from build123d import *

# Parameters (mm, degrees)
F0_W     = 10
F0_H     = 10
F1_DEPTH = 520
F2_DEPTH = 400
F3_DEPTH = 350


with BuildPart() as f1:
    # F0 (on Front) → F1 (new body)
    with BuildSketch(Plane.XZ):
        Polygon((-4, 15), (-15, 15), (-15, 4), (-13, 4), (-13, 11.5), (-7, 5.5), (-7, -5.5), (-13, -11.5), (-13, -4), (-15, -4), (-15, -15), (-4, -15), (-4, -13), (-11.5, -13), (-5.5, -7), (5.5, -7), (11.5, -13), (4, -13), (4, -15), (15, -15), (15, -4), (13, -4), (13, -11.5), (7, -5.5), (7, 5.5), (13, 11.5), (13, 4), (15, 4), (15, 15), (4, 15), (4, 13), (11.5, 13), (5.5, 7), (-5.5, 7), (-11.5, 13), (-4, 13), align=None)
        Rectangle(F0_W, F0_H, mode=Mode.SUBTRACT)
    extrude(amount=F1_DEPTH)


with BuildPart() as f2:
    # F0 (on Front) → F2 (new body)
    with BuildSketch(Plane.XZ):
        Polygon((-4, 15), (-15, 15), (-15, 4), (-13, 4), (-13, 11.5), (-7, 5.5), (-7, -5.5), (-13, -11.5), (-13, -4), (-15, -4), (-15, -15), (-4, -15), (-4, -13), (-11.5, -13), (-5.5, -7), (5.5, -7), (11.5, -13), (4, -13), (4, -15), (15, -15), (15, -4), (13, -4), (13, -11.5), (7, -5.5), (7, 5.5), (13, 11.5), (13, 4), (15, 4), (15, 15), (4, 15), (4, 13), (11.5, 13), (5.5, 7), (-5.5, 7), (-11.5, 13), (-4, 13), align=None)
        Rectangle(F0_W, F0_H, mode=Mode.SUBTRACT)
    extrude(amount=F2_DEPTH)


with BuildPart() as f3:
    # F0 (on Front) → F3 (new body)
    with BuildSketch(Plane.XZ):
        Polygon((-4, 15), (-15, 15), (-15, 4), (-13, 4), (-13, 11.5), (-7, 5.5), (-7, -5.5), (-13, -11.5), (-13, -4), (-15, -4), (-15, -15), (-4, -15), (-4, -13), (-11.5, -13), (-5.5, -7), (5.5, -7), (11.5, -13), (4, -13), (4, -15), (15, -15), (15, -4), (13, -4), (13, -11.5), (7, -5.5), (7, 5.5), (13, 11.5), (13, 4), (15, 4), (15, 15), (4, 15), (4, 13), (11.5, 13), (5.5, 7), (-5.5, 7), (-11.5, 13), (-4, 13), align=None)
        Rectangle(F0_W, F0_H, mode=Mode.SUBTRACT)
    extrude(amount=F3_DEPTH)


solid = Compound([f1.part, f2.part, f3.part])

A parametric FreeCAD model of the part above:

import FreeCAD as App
import Part
import Sketcher
Q = App.Units.Quantity


def add_polygon(sketch, points):
    """Adds a closed chain of lines whose ends are joined by coincident constraints."""
    first, n = sketch.GeometryCount, len(points)
    for a, b in zip(points, points[1:] + points[:1]):
        sketch.addGeometry(Part.LineSegment(App.Vector(*a, 0), App.Vector(*b, 0)), False)
    for i in range(n):
        sketch.addConstraint(Sketcher.Constraint("Coincident", first + i, 2, first + (i + 1) % n, 1))

doc = App.newDocument("Part")
body = doc.addObject("PartDesign::Body", "Body")

# Sketch on XZ plane
sketch1 = body.newObject("Sketcher::SketchObject", "Sketch")
sketch1.AttachmentSupport = (doc.getObject("XZ_Plane"), [""])
sketch1.MapMode = "FlatFace"
add_polygon(sketch1, [(-4, 15), (-15, 15), (-15, 4), (-13, 4), (-13, 11.5), (-7, 5.5), (-7, -5.5), (-13, -11.5), (-13, -4), (-15, -4), (-15, -15), (-4, -15), (-4, -13), (-11.5, -13), (-5.5, -7), (5.5, -7), (11.5, -13), (4, -13), (4, -15), (15, -15), (15, -4), (13, -4), (13, -11.5), (7, -5.5), (7, 5.5), (13, 11.5), (13, 4), (15, 4), (15, 15), (4, 15), (4, 13), (11.5, 13), (5.5, 7), (-5.5, 7), (-11.5, 13), (-4, 13)])  # lines 0-35
add_polygon(sketch1, [(5, -5), (-5, -5), (-5, 5), (5, 5)])  # lines 36-39
sketch1.addConstraint(Sketcher.Constraint("Horizontal", 0))
sketch1.addConstraint(Sketcher.Constraint("Vertical", 1))
sketch1.addConstraint(Sketcher.Constraint("Horizontal", 2))
sketch1.addConstraint(Sketcher.Constraint("Vertical", 3))
sketch1.addConstraint(Sketcher.Constraint("Vertical", 5))
sketch1.addConstraint(Sketcher.Constraint("Vertical", 7))
sketch1.addConstraint(Sketcher.Constraint("Horizontal", 8))
sketch1.addConstraint(Sketcher.Constraint("Vertical", 9))
sketch1.addConstraint(Sketcher.Constraint("Horizontal", 10))
sketch1.addConstraint(Sketcher.Constraint("Vertical", 11))
sketch1.addConstraint(Sketcher.Constraint("Horizontal", 12))
sketch1.addConstraint(Sketcher.Constraint("Horizontal", 14))
sketch1.addConstraint(Sketcher.Constraint("Horizontal", 16))
sketch1.addConstraint(Sketcher.Constraint("Vertical", 17))
sketch1.addConstraint(Sketcher.Constraint("Horizontal", 18))
sketch1.addConstraint(Sketcher.Constraint("Vertical", 19))
sketch1.addConstraint(Sketcher.Constraint("Horizontal", 20))
sketch1.addConstraint(Sketcher.Constraint("Vertical", 21))
sketch1.addConstraint(Sketcher.Constraint("Vertical", 23))
sketch1.addConstraint(Sketcher.Constraint("Vertical", 25))
sketch1.addConstraint(Sketcher.Constraint("Horizontal", 26))
sketch1.addConstraint(Sketcher.Constraint("Vertical", 27))
sketch1.addConstraint(Sketcher.Constraint("Horizontal", 28))
sketch1.addConstraint(Sketcher.Constraint("Vertical", 29))
sketch1.addConstraint(Sketcher.Constraint("Horizontal", 30))
sketch1.addConstraint(Sketcher.Constraint("Horizontal", 32))
sketch1.addConstraint(Sketcher.Constraint("Horizontal", 34))
sketch1.addConstraint(Sketcher.Constraint("Vertical", 35))
sketch1.addConstraint(Sketcher.Constraint("Horizontal", 36))
sketch1.addConstraint(Sketcher.Constraint("Vertical", 37))
sketch1.addConstraint(Sketcher.Constraint("Horizontal", 38))
sketch1.addConstraint(Sketcher.Constraint("Vertical", 39))
sketch1.addConstraint(Sketcher.Constraint("Symmetric", 0, 2, 18, 2, -1, 1))
sketch1.addConstraint(Sketcher.Constraint("Symmetric", 2, 2, 20, 2, -1, 1))
sketch1.addConstraint(Sketcher.Constraint("Symmetric", 4, 2, 22, 2, -1, 1))
sketch1.addConstraint(Sketcher.Constraint("Symmetric", 6, 2, 24, 2, -1, 1))
sketch1.addConstraint(Sketcher.Constraint("Symmetric", 8, 2, 26, 2, -1, 1))
sketch1.addConstraint(Sketcher.Constraint("Symmetric", 10, 2, 28, 2, -1, 1))
sketch1.addConstraint(Sketcher.Constraint("Symmetric", 12, 2, 30, 2, -1, 1))
sketch1.addConstraint(Sketcher.Constraint("Symmetric", 13, 2, 31, 2, -1, 1))
sketch1.addConstraint(Sketcher.Constraint("Symmetric", 15, 2, 33, 2, -1, 1))
sketch1.addConstraint(Sketcher.Constraint("Symmetric", 36, 2, 38, 2, -1, 1))
sketch1.addConstraint(Sketcher.Constraint("Symmetric", 12, 2, 15, 2, -2))
sketch1.addConstraint(Sketcher.Constraint("Symmetric", 10, 2, 17, 2, -2))
sketch1.addConstraint(Sketcher.Constraint("Symmetric", 8, 2, 19, 2, -2))
sketch1.addConstraint(Sketcher.Constraint("Symmetric", 6, 2, 21, 2, -2))
sketch1.addConstraint(Sketcher.Constraint("Perpendicular", 4, 6))
sketch1.addConstraint(Sketcher.Constraint("Parallel", 6, 13))
sketch1.addConstraint(Sketcher.Constraint("Perpendicular", 13, 15))
sketch1.addConstraint(Sketcher.Constraint("Parallel", 15, 22))
sketch1.addConstraint(Sketcher.Constraint("Perpendicular", 22, 24))
sketch1.addConstraint(Sketcher.Constraint("Perpendicular", 31, 33))
sketch1.addConstraint(Sketcher.Constraint("Horizontal", 5, 2, 22, 2))
sketch1.addConstraint(Sketcher.Constraint("Vertical", 11, 2, 34, 2))
sketch1.addConstraint(Sketcher.Constraint("Equal", 10, 14))
sketch1.addConstraint(Sketcher.Constraint("Equal", 32, 1))
sketch1.addConstraint(Sketcher.Constraint("Equal", 34, 3))
sketch1.addConstraint(Sketcher.Constraint("Equal", 1, 5))
sketch1.addConstraint(Sketcher.Constraint("Equal", 26, 11))
sketch1.addConstraint(Sketcher.Constraint("Equal", 38, 37))
sketch1.addConstraint(Sketcher.Constraint("Equal", 6, 13))
sketch1.addConstraint(Sketcher.Constraint("DistanceX", 0, 2, 0, 1, Q("11 mm")))
sketch1.addConstraint(Sketcher.Constraint("DistanceX", 2, 1, 2, 2, Q("2 mm")))
sketch1.addConstraint(Sketcher.Constraint("DistanceX", 36, 2, 36, 1, Q("10 mm")))
sketch1.addConstraint(Sketcher.Constraint("DistanceX", 12, 2, 12, 1, Q("7.5 mm")))
sketch1.addConstraint(Sketcher.Constraint("DistanceX", 0, 2, -1, 1, Q("15 mm")))
pad1 = body.newObject("PartDesign::Pad", "Pad")
pad1.Profile = sketch1
pad1.Length = 520
body2 = doc.addObject("PartDesign::Body", "Body001")

# Sketch on XZ plane
sketch2 = body2.newObject("Sketcher::SketchObject", "Sketch001")
sketch2.AttachmentSupport = (doc.getObject("XZ_Plane001"), [""])
sketch2.MapMode = "FlatFace"
add_polygon(sketch2, [(-4, 15), (-15, 15), (-15, 4), (-13, 4), (-13, 11.5), (-7, 5.5), (-7, -5.5), (-13, -11.5), (-13, -4), (-15, -4), (-15, -15), (-4, -15), (-4, -13), (-11.5, -13), (-5.5, -7), (5.5, -7), (11.5, -13), (4, -13), (4, -15), (15, -15), (15, -4), (13, -4), (13, -11.5), (7, -5.5), (7, 5.5), (13, 11.5), (13, 4), (15, 4), (15, 15), (4, 15), (4, 13), (11.5, 13), (5.5, 7), (-5.5, 7), (-11.5, 13), (-4, 13)])  # lines 0-35
add_polygon(sketch2, [(5, -5), (-5, -5), (-5, 5), (5, 5)])  # lines 36-39
sketch2.addConstraint(Sketcher.Constraint("Horizontal", 0))
sketch2.addConstraint(Sketcher.Constraint("Vertical", 1))
sketch2.addConstraint(Sketcher.Constraint("Horizontal", 2))
sketch2.addConstraint(Sketcher.Constraint("Vertical", 3))
sketch2.addConstraint(Sketcher.Constraint("Vertical", 5))
sketch2.addConstraint(Sketcher.Constraint("Vertical", 7))
sketch2.addConstraint(Sketcher.Constraint("Horizontal", 8))
sketch2.addConstraint(Sketcher.Constraint("Vertical", 9))
sketch2.addConstraint(Sketcher.Constraint("Horizontal", 10))
sketch2.addConstraint(Sketcher.Constraint("Vertical", 11))
sketch2.addConstraint(Sketcher.Constraint("Horizontal", 12))
sketch2.addConstraint(Sketcher.Constraint("Horizontal", 14))
sketch2.addConstraint(Sketcher.Constraint("Horizontal", 16))
sketch2.addConstraint(Sketcher.Constraint("Vertical", 17))
sketch2.addConstraint(Sketcher.Constraint("Horizontal", 18))
sketch2.addConstraint(Sketcher.Constraint("Vertical", 19))
sketch2.addConstraint(Sketcher.Constraint("Horizontal", 20))
sketch2.addConstraint(Sketcher.Constraint("Vertical", 21))
sketch2.addConstraint(Sketcher.Constraint("Vertical", 23))
sketch2.addConstraint(Sketcher.Constraint("Vertical", 25))
sketch2.addConstraint(Sketcher.Constraint("Horizontal", 26))
sketch2.addConstraint(Sketcher.Constraint("Vertical", 27))
sketch2.addConstraint(Sketcher.Constraint("Horizontal", 28))
sketch2.addConstraint(Sketcher.Constraint("Vertical", 29))
sketch2.addConstraint(Sketcher.Constraint("Horizontal", 30))
sketch2.addConstraint(Sketcher.Constraint("Horizontal", 32))
sketch2.addConstraint(Sketcher.Constraint("Horizontal", 34))
sketch2.addConstraint(Sketcher.Constraint("Vertical", 35))
sketch2.addConstraint(Sketcher.Constraint("Horizontal", 36))
sketch2.addConstraint(Sketcher.Constraint("Vertical", 37))
sketch2.addConstraint(Sketcher.Constraint("Horizontal", 38))
sketch2.addConstraint(Sketcher.Constraint("Vertical", 39))
sketch2.addConstraint(Sketcher.Constraint("Symmetric", 0, 2, 18, 2, -1, 1))
sketch2.addConstraint(Sketcher.Constraint("Symmetric", 2, 2, 20, 2, -1, 1))
sketch2.addConstraint(Sketcher.Constraint("Symmetric", 4, 2, 22, 2, -1, 1))
sketch2.addConstraint(Sketcher.Constraint("Symmetric", 6, 2, 24, 2, -1, 1))
sketch2.addConstraint(Sketcher.Constraint("Symmetric", 8, 2, 26, 2, -1, 1))
sketch2.addConstraint(Sketcher.Constraint("Symmetric", 10, 2, 28, 2, -1, 1))
sketch2.addConstraint(Sketcher.Constraint("Symmetric", 12, 2, 30, 2, -1, 1))
sketch2.addConstraint(Sketcher.Constraint("Symmetric", 13, 2, 31, 2, -1, 1))
sketch2.addConstraint(Sketcher.Constraint("Symmetric", 15, 2, 33, 2, -1, 1))
sketch2.addConstraint(Sketcher.Constraint("Symmetric", 36, 2, 38, 2, -1, 1))
sketch2.addConstraint(Sketcher.Constraint("Symmetric", 12, 2, 15, 2, -2))
sketch2.addConstraint(Sketcher.Constraint("Symmetric", 10, 2, 17, 2, -2))
sketch2.addConstraint(Sketcher.Constraint("Symmetric", 8, 2, 19, 2, -2))
sketch2.addConstraint(Sketcher.Constraint("Symmetric", 6, 2, 21, 2, -2))
sketch2.addConstraint(Sketcher.Constraint("Perpendicular", 4, 6))
sketch2.addConstraint(Sketcher.Constraint("Parallel", 6, 13))
sketch2.addConstraint(Sketcher.Constraint("Perpendicular", 13, 15))
sketch2.addConstraint(Sketcher.Constraint("Parallel", 15, 22))
sketch2.addConstraint(Sketcher.Constraint("Perpendicular", 22, 24))
sketch2.addConstraint(Sketcher.Constraint("Perpendicular", 31, 33))
sketch2.addConstraint(Sketcher.Constraint("Horizontal", 5, 2, 22, 2))
sketch2.addConstraint(Sketcher.Constraint("Vertical", 11, 2, 34, 2))
sketch2.addConstraint(Sketcher.Constraint("Equal", 10, 14))
sketch2.addConstraint(Sketcher.Constraint("Equal", 32, 1))
sketch2.addConstraint(Sketcher.Constraint("Equal", 34, 3))
sketch2.addConstraint(Sketcher.Constraint("Equal", 1, 5))
sketch2.addConstraint(Sketcher.Constraint("Equal", 26, 11))
sketch2.addConstraint(Sketcher.Constraint("Equal", 38, 37))
sketch2.addConstraint(Sketcher.Constraint("Equal", 6, 13))
sketch2.addConstraint(Sketcher.Constraint("DistanceX", 0, 2, 0, 1, Q("11 mm")))
sketch2.addConstraint(Sketcher.Constraint("DistanceX", 2, 1, 2, 2, Q("2 mm")))
sketch2.addConstraint(Sketcher.Constraint("DistanceX", 36, 2, 36, 1, Q("10 mm")))
sketch2.addConstraint(Sketcher.Constraint("DistanceX", 12, 2, 12, 1, Q("7.5 mm")))
sketch2.addConstraint(Sketcher.Constraint("DistanceX", 0, 2, -1, 1, Q("15 mm")))
pad2 = body2.newObject("PartDesign::Pad", "Pad001")
pad2.Profile = sketch2
pad2.Length = 400
body3 = doc.addObject("PartDesign::Body", "Body002")

# Sketch on XZ plane
sketch3 = body3.newObject("Sketcher::SketchObject", "Sketch002")
sketch3.AttachmentSupport = (doc.getObject("XZ_Plane002"), [""])
sketch3.MapMode = "FlatFace"
add_polygon(sketch3, [(-4, 15), (-15, 15), (-15, 4), (-13, 4), (-13, 11.5), (-7, 5.5), (-7, -5.5), (-13, -11.5), (-13, -4), (-15, -4), (-15, -15), (-4, -15), (-4, -13), (-11.5, -13), (-5.5, -7), (5.5, -7), (11.5, -13), (4, -13), (4, -15), (15, -15), (15, -4), (13, -4), (13, -11.5), (7, -5.5), (7, 5.5), (13, 11.5), (13, 4), (15, 4), (15, 15), (4, 15), (4, 13), (11.5, 13), (5.5, 7), (-5.5, 7), (-11.5, 13), (-4, 13)])  # lines 0-35
add_polygon(sketch3, [(5, -5), (-5, -5), (-5, 5), (5, 5)])  # lines 36-39
sketch3.addConstraint(Sketcher.Constraint("Horizontal", 0))
sketch3.addConstraint(Sketcher.Constraint("Vertical", 1))
sketch3.addConstraint(Sketcher.Constraint("Horizontal", 2))
sketch3.addConstraint(Sketcher.Constraint("Vertical", 3))
sketch3.addConstraint(Sketcher.Constraint("Vertical", 5))
sketch3.addConstraint(Sketcher.Constraint("Vertical", 7))
sketch3.addConstraint(Sketcher.Constraint("Horizontal", 8))
sketch3.addConstraint(Sketcher.Constraint("Vertical", 9))
sketch3.addConstraint(Sketcher.Constraint("Horizontal", 10))
sketch3.addConstraint(Sketcher.Constraint("Vertical", 11))
sketch3.addConstraint(Sketcher.Constraint("Horizontal", 12))
sketch3.addConstraint(Sketcher.Constraint("Horizontal", 14))
sketch3.addConstraint(Sketcher.Constraint("Horizontal", 16))
sketch3.addConstraint(Sketcher.Constraint("Vertical", 17))
sketch3.addConstraint(Sketcher.Constraint("Horizontal", 18))
sketch3.addConstraint(Sketcher.Constraint("Vertical", 19))
sketch3.addConstraint(Sketcher.Constraint("Horizontal", 20))
sketch3.addConstraint(Sketcher.Constraint("Vertical", 21))
sketch3.addConstraint(Sketcher.Constraint("Vertical", 23))
sketch3.addConstraint(Sketcher.Constraint("Vertical", 25))
sketch3.addConstraint(Sketcher.Constraint("Horizontal", 26))
sketch3.addConstraint(Sketcher.Constraint("Vertical", 27))
sketch3.addConstraint(Sketcher.Constraint("Horizontal", 28))
sketch3.addConstraint(Sketcher.Constraint("Vertical", 29))
sketch3.addConstraint(Sketcher.Constraint("Horizontal", 30))
sketch3.addConstraint(Sketcher.Constraint("Horizontal", 32))
sketch3.addConstraint(Sketcher.Constraint("Horizontal", 34))
sketch3.addConstraint(Sketcher.Constraint("Vertical", 35))
sketch3.addConstraint(Sketcher.Constraint("Horizontal", 36))
sketch3.addConstraint(Sketcher.Constraint("Vertical", 37))
sketch3.addConstraint(Sketcher.Constraint("Horizontal", 38))
sketch3.addConstraint(Sketcher.Constraint("Vertical", 39))
sketch3.addConstraint(Sketcher.Constraint("Symmetric", 0, 2, 18, 2, -1, 1))
sketch3.addConstraint(Sketcher.Constraint("Symmetric", 2, 2, 20, 2, -1, 1))
sketch3.addConstraint(Sketcher.Constraint("Symmetric", 4, 2, 22, 2, -1, 1))
sketch3.addConstraint(Sketcher.Constraint("Symmetric", 6, 2, 24, 2, -1, 1))
sketch3.addConstraint(Sketcher.Constraint("Symmetric", 8, 2, 26, 2, -1, 1))
sketch3.addConstraint(Sketcher.Constraint("Symmetric", 10, 2, 28, 2, -1, 1))
sketch3.addConstraint(Sketcher.Constraint("Symmetric", 12, 2, 30, 2, -1, 1))
sketch3.addConstraint(Sketcher.Constraint("Symmetric", 13, 2, 31, 2, -1, 1))
sketch3.addConstraint(Sketcher.Constraint("Symmetric", 15, 2, 33, 2, -1, 1))
sketch3.addConstraint(Sketcher.Constraint("Symmetric", 36, 2, 38, 2, -1, 1))
sketch3.addConstraint(Sketcher.Constraint("Symmetric", 12, 2, 15, 2, -2))
sketch3.addConstraint(Sketcher.Constraint("Symmetric", 10, 2, 17, 2, -2))
sketch3.addConstraint(Sketcher.Constraint("Symmetric", 8, 2, 19, 2, -2))
sketch3.addConstraint(Sketcher.Constraint("Symmetric", 6, 2, 21, 2, -2))
sketch3.addConstraint(Sketcher.Constraint("Perpendicular", 4, 6))
sketch3.addConstraint(Sketcher.Constraint("Parallel", 6, 13))
sketch3.addConstraint(Sketcher.Constraint("Perpendicular", 13, 15))
sketch3.addConstraint(Sketcher.Constraint("Parallel", 15, 22))
sketch3.addConstraint(Sketcher.Constraint("Perpendicular", 22, 24))
sketch3.addConstraint(Sketcher.Constraint("Perpendicular", 31, 33))
sketch3.addConstraint(Sketcher.Constraint("Horizontal", 5, 2, 22, 2))
sketch3.addConstraint(Sketcher.Constraint("Vertical", 11, 2, 34, 2))
sketch3.addConstraint(Sketcher.Constraint("Equal", 10, 14))
sketch3.addConstraint(Sketcher.Constraint("Equal", 32, 1))
sketch3.addConstraint(Sketcher.Constraint("Equal", 34, 3))
sketch3.addConstraint(Sketcher.Constraint("Equal", 1, 5))
sketch3.addConstraint(Sketcher.Constraint("Equal", 26, 11))
sketch3.addConstraint(Sketcher.Constraint("Equal", 38, 37))
sketch3.addConstraint(Sketcher.Constraint("Equal", 6, 13))
sketch3.addConstraint(Sketcher.Constraint("DistanceX", 0, 2, 0, 1, Q("11 mm")))
sketch3.addConstraint(Sketcher.Constraint("DistanceX", 2, 1, 2, 2, Q("2 mm")))
sketch3.addConstraint(Sketcher.Constraint("DistanceX", 36, 2, 36, 1, Q("10 mm")))
sketch3.addConstraint(Sketcher.Constraint("DistanceX", 12, 2, 12, 1, Q("7.5 mm")))
sketch3.addConstraint(Sketcher.Constraint("DistanceX", 0, 2, -1, 1, Q("15 mm")))
pad3 = body3.newObject("PartDesign::Pad", "Pad002")
pad3.Profile = sketch3
pad3.Length = 350

doc.recompute()
